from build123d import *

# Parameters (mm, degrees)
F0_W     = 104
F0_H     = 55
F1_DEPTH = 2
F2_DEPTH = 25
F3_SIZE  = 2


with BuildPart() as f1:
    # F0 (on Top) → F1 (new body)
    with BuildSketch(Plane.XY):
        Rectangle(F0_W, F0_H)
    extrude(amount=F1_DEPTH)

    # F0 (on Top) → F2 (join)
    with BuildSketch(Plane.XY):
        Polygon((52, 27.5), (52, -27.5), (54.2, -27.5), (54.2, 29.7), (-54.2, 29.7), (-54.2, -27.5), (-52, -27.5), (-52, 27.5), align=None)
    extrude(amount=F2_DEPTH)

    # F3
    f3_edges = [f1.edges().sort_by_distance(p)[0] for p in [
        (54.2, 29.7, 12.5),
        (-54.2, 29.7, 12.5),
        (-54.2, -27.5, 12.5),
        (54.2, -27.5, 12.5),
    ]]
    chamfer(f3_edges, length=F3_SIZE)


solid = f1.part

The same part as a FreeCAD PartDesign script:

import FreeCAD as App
import Part
import Sketcher
Q = App.Units.Quantity


def edges_at(feature, points):
    """Names of the edges that pass closest to the given points."""
    edges = feature.Shape.Edges
    near = lambda p: min(range(len(edges)), key=lambda i: edges[i].distToShape(Part.Vertex(*p))[0])
    return sorted({f"Edge{near(p) + 1}" for p in points})


def add_polygon(sketch, points):
    """Adds a closed chain of lines whose ends are joined by coincident constraints."""
    first, n = sketch.GeometryCount, len(points)
    for a, b in zip(points, points[1:] + points[:1]):
        sketch.addGeometry(Part.LineSegment(App.Vector(*a, 0), App.Vector(*b, 0)), False)
    for i in range(n):
        sketch.addConstraint(Sketcher.Constraint("Coincident", first + i, 2, first + (i + 1) % n, 1))

doc = App.newDocument("Part")
body = doc.addObject("PartDesign::Body", "Body")

# Sketch on XY plane
sketch1 = doc.addObject("Sketcher::SketchObject", "Sketch")
body.addObject(sketch1)
sketch1.AttachmentSupport = (doc.XY_Plane, [""])
sketch1.MapMode = "FlatFace"
add_polygon(sketch1, [(-52, 28), (-52, -28), (52, -28), (52, 28)])  # lines 0-3
sketch1.addConstraint([
    Sketcher.Constraint("Vertical", 0),
    Sketcher.Constraint("Horizontal", 1),
    Sketcher.Constraint("Vertical", 2),
    Sketcher.Constraint("Horizontal", 3),
    Sketcher.Constraint("Symmetric", 0, 2, 2, 2, -1, 1),
    Sketcher.Constraint("DistanceX", 1, 1, 1, 2, Q("104 mm")),
    Sketcher.Constraint("DistanceY", 0, 2, 0, 1, Q("55 mm")),
])
pad1 = doc.addObject("PartDesign::Pad", "Pad")
body.addObject(pad1)
pad1.Profile = sketch1
pad1.Length = 2

# Sketch on XY plane
sketch2 = doc.addObject("Sketcher::SketchObject", "Sketch001")
body.addObject(sketch2)
sketch2.AttachmentSupport = (doc.XY_Plane, [""])
sketch2.MapMode = "FlatFace"
add_polygon(sketch2, [(52, 27.5), (52, -27.5), (54.2, -27.5), (54.2, 29.7), (-54.2, 29.7), (-54.2, -27.5), (-52, -27.5), (-52, 27.5)])  # lines 0-7
sketch2.addConstraint([
    Sketcher.Constraint("Vertical", 0),
    Sketcher.Constraint("Horizontal", 1),
    Sketcher.Constraint("Vertical", 2),
    Sketcher.Constraint("Horizontal", 3),
    Sketcher.Constraint("Vertical", 4),
    Sketcher.Constraint("Horizontal", 5),
    Sketcher.Constraint("Vertical", 6),
    Sketcher.Constraint("Horizontal", 7),
    Sketcher.Constraint("Symmetric", 0, 2, 6, 2, -1, 1),
    Sketcher.Constraint("Symmetric", 1, 2, 4, 2, -2),
    Sketcher.Constraint("DistanceX", 7, 1, 7, 2, Q("104 mm")),
    Sketcher.Constraint("DistanceY", 0, 2, 0, 1, Q("55 mm")),
    Sketcher.Constraint("DistanceX", 1, 1, 1, 2, Q("2.2 mm")),
    Sketcher.Constraint("DistanceY", 2, 1, 2, 2, Q("57.2 mm")),
])
pad2 = doc.addObject("PartDesign::Pad", "Pad001")
body.addObject(pad2)
pad2.Profile = sketch2
pad2.Length = 25
doc.recompute()

chamfer = doc.addObject("PartDesign::Chamfer", "Chamfer")
body.addObject(chamfer)
chamfer.Base = (pad2, edges_at(pad2, [
    (54.2, 29.7, 12.5),
    (-54.2, 29.7, 12.5),
    (-54.2, -27.5, 12.5),
    (54.2, -27.5, 12.5),
]))
chamfer.Size = 2

doc.recompute()
